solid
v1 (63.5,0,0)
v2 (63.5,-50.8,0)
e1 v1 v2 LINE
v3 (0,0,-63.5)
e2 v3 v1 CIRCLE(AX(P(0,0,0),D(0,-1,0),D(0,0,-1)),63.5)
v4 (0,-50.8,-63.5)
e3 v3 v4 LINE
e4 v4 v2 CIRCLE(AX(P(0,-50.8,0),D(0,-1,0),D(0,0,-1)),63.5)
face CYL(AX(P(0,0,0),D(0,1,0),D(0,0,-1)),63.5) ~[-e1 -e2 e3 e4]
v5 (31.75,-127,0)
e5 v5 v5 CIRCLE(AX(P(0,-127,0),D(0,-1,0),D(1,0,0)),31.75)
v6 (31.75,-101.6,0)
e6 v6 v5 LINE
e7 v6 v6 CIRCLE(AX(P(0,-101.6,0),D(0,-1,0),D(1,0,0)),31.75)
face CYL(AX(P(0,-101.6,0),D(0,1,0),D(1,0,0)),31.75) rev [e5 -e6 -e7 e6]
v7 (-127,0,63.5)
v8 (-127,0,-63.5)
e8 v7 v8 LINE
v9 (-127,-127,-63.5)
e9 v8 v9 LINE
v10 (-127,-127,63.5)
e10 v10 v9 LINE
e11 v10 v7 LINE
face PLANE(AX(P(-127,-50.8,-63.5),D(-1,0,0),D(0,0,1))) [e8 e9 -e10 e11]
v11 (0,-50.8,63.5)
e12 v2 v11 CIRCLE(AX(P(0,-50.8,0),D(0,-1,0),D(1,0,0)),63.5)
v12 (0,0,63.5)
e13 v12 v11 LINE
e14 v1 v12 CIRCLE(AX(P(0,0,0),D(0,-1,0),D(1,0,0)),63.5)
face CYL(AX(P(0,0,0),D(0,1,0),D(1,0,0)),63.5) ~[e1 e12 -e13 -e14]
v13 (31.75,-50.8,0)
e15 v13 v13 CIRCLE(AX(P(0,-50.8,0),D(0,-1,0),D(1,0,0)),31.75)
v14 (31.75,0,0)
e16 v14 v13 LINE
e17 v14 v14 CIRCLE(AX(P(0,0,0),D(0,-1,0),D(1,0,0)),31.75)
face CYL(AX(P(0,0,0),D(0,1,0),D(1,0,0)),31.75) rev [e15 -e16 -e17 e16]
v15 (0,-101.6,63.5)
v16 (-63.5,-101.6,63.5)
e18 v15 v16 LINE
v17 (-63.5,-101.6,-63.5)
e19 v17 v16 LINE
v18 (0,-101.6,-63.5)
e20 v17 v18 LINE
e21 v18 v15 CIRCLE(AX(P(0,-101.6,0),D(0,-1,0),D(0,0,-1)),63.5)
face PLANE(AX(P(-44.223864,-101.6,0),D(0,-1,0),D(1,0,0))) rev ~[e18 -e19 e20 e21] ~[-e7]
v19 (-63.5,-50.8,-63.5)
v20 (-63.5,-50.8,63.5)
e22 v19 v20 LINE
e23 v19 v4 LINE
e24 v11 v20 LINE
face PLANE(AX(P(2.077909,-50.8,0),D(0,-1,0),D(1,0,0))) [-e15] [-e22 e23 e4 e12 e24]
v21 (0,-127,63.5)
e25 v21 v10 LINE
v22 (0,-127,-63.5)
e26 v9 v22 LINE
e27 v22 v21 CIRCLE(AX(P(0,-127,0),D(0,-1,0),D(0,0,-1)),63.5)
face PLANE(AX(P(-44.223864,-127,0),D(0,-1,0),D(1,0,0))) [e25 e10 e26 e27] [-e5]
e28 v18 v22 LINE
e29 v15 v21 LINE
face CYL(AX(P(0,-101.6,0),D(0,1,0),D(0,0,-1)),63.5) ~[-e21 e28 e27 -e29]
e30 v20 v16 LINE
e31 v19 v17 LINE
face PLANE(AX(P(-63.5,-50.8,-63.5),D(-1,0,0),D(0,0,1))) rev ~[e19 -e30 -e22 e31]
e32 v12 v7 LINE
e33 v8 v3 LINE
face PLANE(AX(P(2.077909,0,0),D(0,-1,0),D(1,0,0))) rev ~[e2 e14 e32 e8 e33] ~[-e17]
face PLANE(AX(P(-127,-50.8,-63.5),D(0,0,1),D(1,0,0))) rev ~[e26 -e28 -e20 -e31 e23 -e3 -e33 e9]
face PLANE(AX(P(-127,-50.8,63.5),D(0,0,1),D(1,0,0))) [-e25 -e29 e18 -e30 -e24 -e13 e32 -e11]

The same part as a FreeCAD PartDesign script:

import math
import FreeCAD as App
import Part
import Sketcher

V = App.Vector
Q = App.Units.Quantity

doc = App.newDocument("Part")
body = doc.addObject("PartDesign::Body", "Body")

sketch1 = doc.addObject("Sketcher::SketchObject", "Sketch")
body.addObject(sketch1)
sketch1.AttachmentSupport = (doc.XZ_Plane, [""])
sketch1.MapMode = "FlatFace"
sketch1.addGeometry([
    Part.ArcOfCircle(Part.Circle(V(0, 0, 0), V(0, 0, 1), 64), math.radians(-90), math.radians(0)),
    Part.ArcOfCircle(Part.Circle(V(0, 0, 0), V(0, 0, 1), 64), math.radians(0), math.radians(90)),
    Part.LineSegment(V(0, 64, 0), V(-127, 64, 0)),
    Part.LineSegment(V(-127, 64, 0), V(-127, -64, 0)),
    Part.LineSegment(V(-127, -64, 0), V(0, -64, 0)),
    Part.Circle(V(0, 0, 0), V(0, 0, 1), 32),
], False)
sketch1.addConstraint([
    Sketcher.Constraint("Tangent", 0, 2, 1, 1),
    Sketcher.Constraint("Tangent", 1, 2, 2, 1),
    Sketcher.Constraint("Coincident", 2, 2, 3, 1),
    Sketcher.Constraint("Coincident", 3, 2, 4, 1),
    Sketcher.Constraint("Tangent", 4, 2, 0, 1),
    Sketcher.Constraint("Horizontal", 2),
    Sketcher.Constraint("Vertical", 3),
    Sketcher.Constraint("Horizontal", 4),
    Sketcher.Constraint("Coincident", 0, 3, -1, 1),
    Sketcher.Constraint("Coincident", 5, 3, -1, 1),
    Sketcher.Constraint("Equal", 0, 1),
    Sketcher.Constraint("PointOnObject", 0, 2, -1),
    Sketcher.Constraint("Equal", 4, 3),
    Sketcher.Constraint("Diameter", 5, Q("2.5 in")),
    Sketcher.Constraint("Radius", 0, Q("2.5 in")),
])
pad1 = doc.addObject("PartDesign::Pad", "Pad")
body.addObject(pad1)
pad1.Profile = sketch1
pad1.Length = Q("2 in")
body2 = doc.addObject("PartDesign::Body", "Body001")

sketch2 = doc.addObject("Sketcher::SketchObject", "Sketch001")
body2.addObject(sketch2)
sketch2.AttachmentSupport = (doc.getObject("XZ_Plane001"), [""])
sketch2.MapMode = "FlatFace"
sketch2.AttachmentOffset = App.Placement(V(0, 0, 4 * 25.4), App.Rotation())
sketch2.addGeometry([
    Part.LineSegment(V(-127, 64, 0), V(-127, -64, 0)),
    Part.LineSegment(V(-127, -64, 0), V(0, -64, 0)),
    Part.ArcOfCircle(Part.Circle(V(0, 0, 0), V(0, 0, 1), 64), math.radians(-90), math.radians(90)),
    Part.LineSegment(V(0, 64, 0), V(-127, 64, 0)),
    Part.Circle(V(0, 0, 0), V(0, 0, 1), 32),
], False)
sketch2.addConstraint([
    Sketcher.Constraint("Coincident", 0, 2, 1, 1),
    Sketcher.Constraint("Tangent", 1, 2, 2, 1),
    Sketcher.Constraint("Tangent", 2, 2, 3, 1),
    Sketcher.Constraint("Coincident", 3, 2, 0, 1),
    Sketcher.Constraint("Vertical", 0),
    Sketcher.Constraint("Horizontal", 1),
    Sketcher.Constraint("Horizontal", 3),
    Sketcher.Constraint("Coincident", 2, 3, -1, 1),
    Sketcher.Constraint("Coincident", 4, 3, -1, 1),
    Sketcher.Constraint("Equal", 3, 0),
    Sketcher.Constraint("Diameter", 4, Q("2.5 in")),
    Sketcher.Constraint("Radius", 2, Q("2.5 in")),
])
pad2 = doc.addObject("PartDesign::Pad", "Pad001")
body2.addObject(pad2)
pad2.Profile = sketch2
pad2.Length = Q("1 in")
body3 = doc.addObject("PartDesign::Body", "Body002")

sketch3 = doc.addObject("Sketcher::SketchObject", "Sketch002")
body3.addObject(sketch3)
sketch3.AttachmentSupport = (doc.getObject("XZ_Plane002"), [""])
sketch3.MapMode = "FlatFace"
sketch3.AttachmentOffset = App.Placement(V(0, 0, 2 * 25.4), App.Rotation())
sketch3.addGeometry([
    Part.LineSegment(V(-127, 64, 0), V(-127, -64, 0)),
    Part.LineSegment(V(-127, -64, 0), V(-64, -64, 0)),
    Part.LineSegment(V(-64, -64, 0), V(-64, 64, 0)),
    Part.LineSegment(V(-64, 64, 0), V(-127, 64, 0)),
], False)
sketch3.addConstraint([
    Sketcher.Constraint("Coincident", 0, 2, 1, 1),
    Sketcher.Constraint("Coincident", 1, 2, 2, 1),
    Sketcher.Constraint("Coincident", 2, 2, 3, 1),
    Sketcher.Constraint("Coincident", 3, 2, 0, 1),
    Sketcher.Constraint("Vertical", 0),
    Sketcher.Constraint("Horizontal", 1),
    Sketcher.Constraint("Vertical", 2),
    Sketcher.Constraint("Horizontal", 3),
    Sketcher.Constraint("DistanceY", 0, 2, 0, 1, Q("5 in")),
    Sketcher.Constraint("DistanceX", 1, 1, 1, 2, Q("2.5 in")),
    Sketcher.Constraint("DistanceX", 0, 2, -1, 1, Q("5 in")),
    Sketcher.Constraint("DistanceY", 0, 2, -1, 1, Q("2.5 in")),
])
pad3 = doc.addObject("PartDesign::Pad", "Pad002")
body3.addObject(pad3)
pad3.Profile = sketch3
pad3.Length = Q("2 in")
body.AllowCompound = True
doc.recompute()

boolean = doc.addObject("PartDesign::Boolean", "Boolean")
body.addObject(boolean)
boolean.Type = "Fuse"
boolean.addObjects([body2])
doc.recompute()

boolean2 = doc.addObject("PartDesign::Boolean", "Boolean001")
body.addObject(boolean2)
boolean2.Type = "Fuse"
boolean2.addObjects([body3])

sketch4 = doc.addObject("Sketcher::SketchObject", "Sketch003")
body.addObject(sketch4)
sketch4.AttachmentSupport = (doc.XZ_Plane, [""])
sketch4.MapMode = "FlatFace"
sketch4.AttachmentOffset = App.Placement(V(0, 0, 2 * 25.4), App.Rotation())
sketch4.addGeometry([
    Part.LineSegment(V(-127, 64, 0), V(-127, -64, 0)),
    Part.LineSegment(V(-127, -64, 0), V(-64, -64, 0)),
    Part.LineSegment(V(-64, -64, 0), V(-64, 64, 0)),
    Part.LineSegment(V(-64, 64, 0), V(-127, 64, 0)),
], False)
sketch4.addConstraint([
    Sketcher.Constraint("Coincident", 0, 2, 1, 1),
    Sketcher.Constraint("Coincident", 1, 2, 2, 1),
    Sketcher.Constraint("Coincident", 2, 2, 3, 1),
    Sketcher.Constraint("Coincident", 3, 2, 0, 1),
    Sketcher.Constraint("Vertical", 0),
    Sketcher.Constraint("Horizontal", 1),
    Sketcher.Constraint("Vertical", 2),
    Sketcher.Constraint("Horizontal", 3),
    Sketcher.Constraint("DistanceY", 0, 2, 0, 1, Q("5 in")),
    Sketcher.Constraint("DistanceX", 1, 1, 1, 2, Q("2.5 in")),
    Sketcher.Constraint("DistanceX", 0, 2, -1, 1, Q("5 in")),
    Sketcher.Constraint("DistanceY", 0, 2, -1, 1, Q("2.5 in")),
])
pad4 = doc.addObject("PartDesign::Pad", "Pad003")
body.addObject(pad4)
pad4.Profile = sketch4
pad4.Type = "UpToLast"

doc.recompute()
